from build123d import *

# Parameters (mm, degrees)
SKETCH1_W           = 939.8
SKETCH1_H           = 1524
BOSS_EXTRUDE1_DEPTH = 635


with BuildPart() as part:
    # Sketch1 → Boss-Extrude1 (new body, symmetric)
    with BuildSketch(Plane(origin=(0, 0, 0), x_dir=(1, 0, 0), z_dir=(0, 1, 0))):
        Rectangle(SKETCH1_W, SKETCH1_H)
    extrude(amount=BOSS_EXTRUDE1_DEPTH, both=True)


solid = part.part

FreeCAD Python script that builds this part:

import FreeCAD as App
import Part
import Sketcher
from FreeCAD import Vector
Q = App.Units.Quantity

doc = App.newDocument("Part")
body = doc.addObject("PartDesign::Body", "Body")

# Sketch on XZ plane
sketch1 = doc.addObject("Sketcher::SketchObject", "Sketch")
body.addObject(sketch1)
sketch1.AttachmentSupport = (doc.XZ_Plane, [""])
sketch1.MapMode = "FlatFace"
sketch1.addGeometry(Part.LineSegment(Vector(-469.9, -762, 0), Vector(-469.9, 762, 0)), False)
sketch1.addGeometry(Part.LineSegment(Vector(-469.9, 762, 0), Vector(469.9, 762, 0)), False)
sketch1.addGeometry(Part.LineSegment(Vector(469.9, 762, 0), Vector(469.9, -762, 0)), False)
sketch1.addGeometry(Part.LineSegment(Vector(469.9, -762, 0), Vector(-469.9, -762, 0)), False)
sketch1.addConstraint(Sketcher.Constraint("Coincident", 0, 2, 1, 1))
sketch1.addConstraint(Sketcher.Constraint("Coincident", 1, 2, 2, 1))
sketch1.addConstraint(Sketcher.Constraint("Coincident", 2, 2, 3, 1))
sketch1.addConstraint(Sketcher.Constraint("Coincident", 3, 2, 0, 1))
sketch1.addConstraint(Sketcher.Constraint("Vertical", 0))
sketch1.addConstraint(Sketcher.Constraint("Horizontal", 1))
sketch1.addConstraint(Sketcher.Constraint("Vertical", 2))
sketch1.addConstraint(Sketcher.Constraint("Horizontal", 3))
sketch1.addConstraint(Sketcher.Constraint("Symmetric", 0, 2, 2, 2, -1, 1))
sketch1.addConstraint(Sketcher.Constraint("DistanceX", 1, 1, 1, 2, Q("37 in")))
sketch1.addConstraint(Sketcher.Constraint("DistanceY", 0, 1, 0, 2, Q("60 in")))
pad1 = doc.addObject("PartDesign::Pad", "Pad")
body.addObject(pad1)
pad1.Profile = sketch1
pad1.Length = Q("50 in")
pad1.Midplane = True

doc.recompute()
